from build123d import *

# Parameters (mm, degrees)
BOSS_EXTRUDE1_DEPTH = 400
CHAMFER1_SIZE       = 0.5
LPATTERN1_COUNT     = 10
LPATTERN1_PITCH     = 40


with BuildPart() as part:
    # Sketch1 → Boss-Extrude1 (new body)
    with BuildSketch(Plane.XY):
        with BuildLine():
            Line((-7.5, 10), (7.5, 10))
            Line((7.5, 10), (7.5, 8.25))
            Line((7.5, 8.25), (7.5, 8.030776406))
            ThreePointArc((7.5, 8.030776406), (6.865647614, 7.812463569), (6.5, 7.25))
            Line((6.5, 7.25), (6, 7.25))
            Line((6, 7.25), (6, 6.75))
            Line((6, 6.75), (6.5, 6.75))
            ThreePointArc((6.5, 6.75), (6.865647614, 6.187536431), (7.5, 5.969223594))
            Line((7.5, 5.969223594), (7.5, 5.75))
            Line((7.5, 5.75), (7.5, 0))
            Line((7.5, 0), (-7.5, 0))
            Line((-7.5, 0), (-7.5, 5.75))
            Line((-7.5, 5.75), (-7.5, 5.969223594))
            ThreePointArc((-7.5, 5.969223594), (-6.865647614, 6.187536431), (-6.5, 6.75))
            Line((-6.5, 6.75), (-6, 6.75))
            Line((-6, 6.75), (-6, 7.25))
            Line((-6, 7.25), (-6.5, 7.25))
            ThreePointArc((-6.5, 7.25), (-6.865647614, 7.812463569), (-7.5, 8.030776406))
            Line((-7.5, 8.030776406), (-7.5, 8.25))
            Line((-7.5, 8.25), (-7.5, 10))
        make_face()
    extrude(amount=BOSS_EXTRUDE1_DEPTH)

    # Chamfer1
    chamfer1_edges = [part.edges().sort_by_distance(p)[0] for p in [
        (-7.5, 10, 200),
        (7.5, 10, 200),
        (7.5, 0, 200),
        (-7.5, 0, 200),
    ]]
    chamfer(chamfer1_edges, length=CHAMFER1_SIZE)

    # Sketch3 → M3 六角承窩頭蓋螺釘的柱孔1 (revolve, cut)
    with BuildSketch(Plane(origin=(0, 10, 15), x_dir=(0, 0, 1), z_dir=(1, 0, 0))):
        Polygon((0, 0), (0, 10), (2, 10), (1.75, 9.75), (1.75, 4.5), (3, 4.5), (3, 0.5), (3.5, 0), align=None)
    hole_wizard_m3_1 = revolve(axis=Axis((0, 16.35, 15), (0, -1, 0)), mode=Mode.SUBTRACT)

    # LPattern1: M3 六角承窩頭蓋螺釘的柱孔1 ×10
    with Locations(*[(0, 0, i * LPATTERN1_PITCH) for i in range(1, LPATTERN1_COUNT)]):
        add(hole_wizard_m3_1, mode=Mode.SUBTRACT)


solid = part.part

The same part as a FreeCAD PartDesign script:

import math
import FreeCAD as App
import Part
import Sketcher
Q = App.Units.Quantity


def edges_at(feature, points):
    """Names of the edges that pass closest to the given points."""
    edges = feature.Shape.Edges
    near = lambda p: min(range(len(edges)), key=lambda i: edges[i].distToShape(Part.Vertex(*p))[0])
    return sorted({f"Edge{near(p) + 1}" for p in points})


def add_polygon(sketch, points):
    """Adds a closed chain of lines whose ends are joined by coincident constraints."""
    first, n = sketch.GeometryCount, len(points)
    for a, b in zip(points, points[1:] + points[:1]):
        sketch.addGeometry(Part.LineSegment(App.Vector(*a, 0), App.Vector(*b, 0)), False)
    for i in range(n):
        sketch.addConstraint(Sketcher.Constraint("Coincident", first + i, 2, first + (i + 1) % n, 1))

doc = App.newDocument("Part")
body = doc.addObject("PartDesign::Body", "Body")

sketch1 = body.newObject("Sketcher::SketchObject", "Sketch")
sketch1.AttachmentSupport = (doc.getObject("XY_Plane"), [""])
sketch1.MapMode = "FlatFace"
sketch1.addGeometry(Part.LineSegment(App.Vector(7.5, 10, 0), App.Vector(-7.5, 10, 0)), False)
sketch1.addGeometry(Part.LineSegment(App.Vector(-7.5, 10, 0), App.Vector(-7.5, 8.030776, 0)), False)
sketch1.addGeometry(Part.ArcOfCircle(Part.Circle(App.Vector(-7.5, 7, 0), App.Vector(0, 0, 1), 1.030776), math.radians(14.036243), math.radians(90)), False)
sketch1.addGeometry(Part.LineSegment(App.Vector(-6.5, 7.25, 0), App.Vector(-6, 7.25, 0)), False)
sketch1.addGeometry(Part.LineSegment(App.Vector(-6, 7.25, 0), App.Vector(-6, 6.75, 0)), False)
sketch1.addGeometry(Part.LineSegment(App.Vector(-6, 6.75, 0), App.Vector(-6.5, 6.75, 0)), False)
sketch1.addGeometry(Part.ArcOfCircle(Part.Circle(App.Vector(-7.5, 7, 0), App.Vector(0, 0, 1), 1.030776), math.radians(-90), math.radians(-14.036243)), False)
sketch1.addGeometry(Part.LineSegment(App.Vector(-7.5, 5.969224, 0), App.Vector(-7.5, 0, 0)), False)
sketch1.addGeometry(Part.LineSegment(App.Vector(-7.5, 0, 0), App.Vector(7.5, 0, 0)), False)
sketch1.addGeometry(Part.LineSegment(App.Vector(7.5, 0, 0), App.Vector(7.5, 5.969224, 0)), False)
sketch1.addGeometry(Part.ArcOfCircle(Part.Circle(App.Vector(7.5, 7, 0), App.Vector(0, 0, 1), 1.030776), math.radians(-165.963757), math.radians(-90)), False)
sketch1.addGeometry(Part.LineSegment(App.Vector(6.5, 6.75, 0), App.Vector(6, 6.75, 0)), False)
sketch1.addGeometry(Part.LineSegment(App.Vector(6, 6.75, 0), App.Vector(6, 7.25, 0)), False)
sketch1.addGeometry(Part.LineSegment(App.Vector(6, 7.25, 0), App.Vector(6.5, 7.25, 0)), False)
sketch1.addGeometry(Part.ArcOfCircle(Part.Circle(App.Vector(7.5, 7, 0), App.Vector(0, 0, 1), 1.030776), math.radians(90), math.radians(165.963757)), False)
sketch1.addGeometry(Part.LineSegment(App.Vector(7.5, 8.030776, 0), App.Vector(7.5, 10, 0)), False)
sketch1.addConstraint(Sketcher.Constraint("Coincident", 0, 2, 1, 1))
sketch1.addConstraint(Sketcher.Constraint("Coincident", 1, 2, 2, 2))
sketch1.addConstraint(Sketcher.Constraint("Coincident", 2, 1, 3, 1))
sketch1.addConstraint(Sketcher.Constraint("Coincident", 3, 2, 4, 1))
sketch1.addConstraint(Sketcher.Constraint("Coincident", 4, 2, 5, 1))
sketch1.addConstraint(Sketcher.Constraint("Coincident", 5, 2, 6, 2))
sketch1.addConstraint(Sketcher.Constraint("Coincident", 6, 1, 7, 1))
sketch1.addConstraint(Sketcher.Constraint("Coincident", 7, 2, 8, 1))
sketch1.addConstraint(Sketcher.Constraint("Coincident", 8, 2, 9, 1))
sketch1.addConstraint(Sketcher.Constraint("Coincident", 9, 2, 10, 2))
sketch1.addConstraint(Sketcher.Constraint("Coincident", 10, 1, 11, 1))
sketch1.addConstraint(Sketcher.Constraint("Coincident", 11, 2, 12, 1))
sketch1.addConstraint(Sketcher.Constraint("Coincident", 12, 2, 13, 1))
sketch1.addConstraint(Sketcher.Constraint("Coincident", 13, 2, 14, 2))
sketch1.addConstraint(Sketcher.Constraint("Coincident", 14, 1, 15, 1))
sketch1.addConstraint(Sketcher.Constraint("Coincident", 15, 2, 0, 1))
sketch1.addConstraint(Sketcher.Constraint("Horizontal", 0))
sketch1.addConstraint(Sketcher.Constraint("Vertical", 1))
sketch1.addConstraint(Sketcher.Constraint("Horizontal", 3))
sketch1.addConstraint(Sketcher.Constraint("Vertical", 4))
sketch1.addConstraint(Sketcher.Constraint("Horizontal", 5))
sketch1.addConstraint(Sketcher.Constraint("Vertical", 7))
sketch1.addConstraint(Sketcher.Constraint("Horizontal", 8))
sketch1.addConstraint(Sketcher.Constraint("Vertical", 9))
sketch1.addConstraint(Sketcher.Constraint("Horizontal", 11))
sketch1.addConstraint(Sketcher.Constraint("Vertical", 12))
sketch1.addConstraint(Sketcher.Constraint("Horizontal", 13))
sketch1.addConstraint(Sketcher.Constraint("Vertical", 15))
sketch1.addConstraint(Sketcher.Constraint("Coincident", 6, 3, 2, 3))
sketch1.addConstraint(Sketcher.Constraint("Coincident", 14, 3, 10, 3))
sketch1.addConstraint(Sketcher.Constraint("Equal", 2, 6))
sketch1.addConstraint(Sketcher.Constraint("Equal", 6, 10))
sketch1.addConstraint(Sketcher.Constraint("Equal", 10, 14))
sketch1.addConstraint(Sketcher.Constraint("Symmetric", 7, 2, 8, 2, -1, 1))
sketch1.addConstraint(Sketcher.Constraint("Symmetric", 2, 3, 10, 3, -2))
sketch1.addConstraint(Sketcher.Constraint("Symmetric", 4, 2, 11, 2, -2))
sketch1.addConstraint(Sketcher.Constraint("Horizontal", 3, 2, 12, 2))
sketch1.addConstraint(Sketcher.Constraint("Vertical", 6, 3, 0, 2))
sketch1.addConstraint(Sketcher.Constraint("Vertical", 2, 1, 5, 2))
sketch1.addConstraint(Sketcher.Constraint("Vertical", 1, 2, 6, 1))
sketch1.addConstraint(Sketcher.Constraint("Vertical", 9, 2, 14, 1))
sketch1.addConstraint(Sketcher.Constraint("Equal", 13, 4))
sketch1.addConstraint(Sketcher.Constraint("DistanceX", 0, 2, 0, 1, 15.0))
sketch1.addConstraint(Sketcher.Constraint("DistanceX", 3, 1, 3, 2, 0.5))
sketch1.addConstraint(Sketcher.Constraint("DistanceY", -1, 1, 2, 3, 7.0))
sketch1.addConstraint(Sketcher.Constraint("DistanceY", -1, 1, 0, 2, 10.0))
sketch1.addConstraint(Sketcher.Constraint("DistanceX", 3, 2, -1, 1, 6.0))
pad1 = body.newObject("PartDesign::Pad", "Pad")
pad1.Profile = sketch1
pad1.Length = 400
doc.recompute()

chamfer = body.newObject("PartDesign::Chamfer", "Chamfer")
chamfer.Base = (pad1, edges_at(pad1, [
    (-7.5, 10, 200),
    (7.5, 10, 200),
    (7.5, 0, 200),
    (-7.5, 0, 200),
]))
chamfer.Size = 0.5

sketch2 = body.newObject("Sketcher::SketchObject", "Sketch001")
sketch2.AttachmentSupport = (doc.getObject("YZ_Plane"), [""])
sketch2.MapMode = "FlatFace"
add_polygon(sketch2, [(0, 15), (10, 15), (10, 18.5), (9.5, 18), (5.5, 18), (5.5, 16.75), (0.25, 16.75), (0, 17)])
sketch2.addGeometry(Part.LineSegment(App.Vector(10, 15, 0), App.Vector(0, 15, 0)), True)
sketch2.addConstraint(Sketcher.Constraint("Horizontal", 0))
sketch2.addConstraint(Sketcher.Constraint("Vertical", 1))
sketch2.addConstraint(Sketcher.Constraint("Horizontal", 3))
sketch2.addConstraint(Sketcher.Constraint("Vertical", 4))
sketch2.addConstraint(Sketcher.Constraint("Horizontal", 5))
sketch2.addConstraint(Sketcher.Constraint("Vertical", 7))
sketch2.addConstraint(Sketcher.Constraint("Horizontal", 8))
sketch2.addConstraint(Sketcher.Constraint("Coincident", 8, 1, 0, 2))
sketch2.addConstraint(Sketcher.Constraint("PointOnObject", 6, 2, -2))
sketch2.addConstraint(Sketcher.Constraint("PointOnObject", 8, 2, -2))
sketch2.addConstraint(Sketcher.Constraint("Perpendicular", 2, 6))
sketch2.addConstraint(Sketcher.Constraint("DistanceX", 0, 1, 0, 2, 10.0))
sketch2.addConstraint(Sketcher.Constraint("DistanceX", 3, 2, 3, 1, 4.0))
sketch2.addConstraint(Sketcher.Constraint("DistanceY", 7, 2, 7, 1, 2.0))
sketch2.addConstraint(Sketcher.Constraint("Angle", 2, Q("-135 deg")))
sketch2.addConstraint(Sketcher.Constraint("DistanceY", 1, 1, 1, 2, 3.5))
sketch2.addConstraint(Sketcher.Constraint("DistanceY", -1, 1, 0, 2, 15.0))
sketch2.addConstraint(Sketcher.Constraint("DistanceY", -1, 1, 2, 2, 18.0))
sketch2.addConstraint(Sketcher.Constraint("DistanceX", 5, 2, 5, 1, 5.25))
groove = body.newObject("PartDesign::Groove", "Groove")
groove.Profile = sketch2
groove.ReferenceAxis = (sketch2, ["Axis0"])
groove.Angle = 360
doc.recompute()

linearpattern = body.newObject("PartDesign::LinearPattern", "LinearPattern")
linearpattern.Originals = [groove]
linearpattern.Direction = (doc.getObject("Z_Axis"), [""])
linearpattern.Mode = "offset"
linearpattern.Offset = 40
linearpattern.Occurrences = 10
body.Tip = linearpattern

doc.recompute()
